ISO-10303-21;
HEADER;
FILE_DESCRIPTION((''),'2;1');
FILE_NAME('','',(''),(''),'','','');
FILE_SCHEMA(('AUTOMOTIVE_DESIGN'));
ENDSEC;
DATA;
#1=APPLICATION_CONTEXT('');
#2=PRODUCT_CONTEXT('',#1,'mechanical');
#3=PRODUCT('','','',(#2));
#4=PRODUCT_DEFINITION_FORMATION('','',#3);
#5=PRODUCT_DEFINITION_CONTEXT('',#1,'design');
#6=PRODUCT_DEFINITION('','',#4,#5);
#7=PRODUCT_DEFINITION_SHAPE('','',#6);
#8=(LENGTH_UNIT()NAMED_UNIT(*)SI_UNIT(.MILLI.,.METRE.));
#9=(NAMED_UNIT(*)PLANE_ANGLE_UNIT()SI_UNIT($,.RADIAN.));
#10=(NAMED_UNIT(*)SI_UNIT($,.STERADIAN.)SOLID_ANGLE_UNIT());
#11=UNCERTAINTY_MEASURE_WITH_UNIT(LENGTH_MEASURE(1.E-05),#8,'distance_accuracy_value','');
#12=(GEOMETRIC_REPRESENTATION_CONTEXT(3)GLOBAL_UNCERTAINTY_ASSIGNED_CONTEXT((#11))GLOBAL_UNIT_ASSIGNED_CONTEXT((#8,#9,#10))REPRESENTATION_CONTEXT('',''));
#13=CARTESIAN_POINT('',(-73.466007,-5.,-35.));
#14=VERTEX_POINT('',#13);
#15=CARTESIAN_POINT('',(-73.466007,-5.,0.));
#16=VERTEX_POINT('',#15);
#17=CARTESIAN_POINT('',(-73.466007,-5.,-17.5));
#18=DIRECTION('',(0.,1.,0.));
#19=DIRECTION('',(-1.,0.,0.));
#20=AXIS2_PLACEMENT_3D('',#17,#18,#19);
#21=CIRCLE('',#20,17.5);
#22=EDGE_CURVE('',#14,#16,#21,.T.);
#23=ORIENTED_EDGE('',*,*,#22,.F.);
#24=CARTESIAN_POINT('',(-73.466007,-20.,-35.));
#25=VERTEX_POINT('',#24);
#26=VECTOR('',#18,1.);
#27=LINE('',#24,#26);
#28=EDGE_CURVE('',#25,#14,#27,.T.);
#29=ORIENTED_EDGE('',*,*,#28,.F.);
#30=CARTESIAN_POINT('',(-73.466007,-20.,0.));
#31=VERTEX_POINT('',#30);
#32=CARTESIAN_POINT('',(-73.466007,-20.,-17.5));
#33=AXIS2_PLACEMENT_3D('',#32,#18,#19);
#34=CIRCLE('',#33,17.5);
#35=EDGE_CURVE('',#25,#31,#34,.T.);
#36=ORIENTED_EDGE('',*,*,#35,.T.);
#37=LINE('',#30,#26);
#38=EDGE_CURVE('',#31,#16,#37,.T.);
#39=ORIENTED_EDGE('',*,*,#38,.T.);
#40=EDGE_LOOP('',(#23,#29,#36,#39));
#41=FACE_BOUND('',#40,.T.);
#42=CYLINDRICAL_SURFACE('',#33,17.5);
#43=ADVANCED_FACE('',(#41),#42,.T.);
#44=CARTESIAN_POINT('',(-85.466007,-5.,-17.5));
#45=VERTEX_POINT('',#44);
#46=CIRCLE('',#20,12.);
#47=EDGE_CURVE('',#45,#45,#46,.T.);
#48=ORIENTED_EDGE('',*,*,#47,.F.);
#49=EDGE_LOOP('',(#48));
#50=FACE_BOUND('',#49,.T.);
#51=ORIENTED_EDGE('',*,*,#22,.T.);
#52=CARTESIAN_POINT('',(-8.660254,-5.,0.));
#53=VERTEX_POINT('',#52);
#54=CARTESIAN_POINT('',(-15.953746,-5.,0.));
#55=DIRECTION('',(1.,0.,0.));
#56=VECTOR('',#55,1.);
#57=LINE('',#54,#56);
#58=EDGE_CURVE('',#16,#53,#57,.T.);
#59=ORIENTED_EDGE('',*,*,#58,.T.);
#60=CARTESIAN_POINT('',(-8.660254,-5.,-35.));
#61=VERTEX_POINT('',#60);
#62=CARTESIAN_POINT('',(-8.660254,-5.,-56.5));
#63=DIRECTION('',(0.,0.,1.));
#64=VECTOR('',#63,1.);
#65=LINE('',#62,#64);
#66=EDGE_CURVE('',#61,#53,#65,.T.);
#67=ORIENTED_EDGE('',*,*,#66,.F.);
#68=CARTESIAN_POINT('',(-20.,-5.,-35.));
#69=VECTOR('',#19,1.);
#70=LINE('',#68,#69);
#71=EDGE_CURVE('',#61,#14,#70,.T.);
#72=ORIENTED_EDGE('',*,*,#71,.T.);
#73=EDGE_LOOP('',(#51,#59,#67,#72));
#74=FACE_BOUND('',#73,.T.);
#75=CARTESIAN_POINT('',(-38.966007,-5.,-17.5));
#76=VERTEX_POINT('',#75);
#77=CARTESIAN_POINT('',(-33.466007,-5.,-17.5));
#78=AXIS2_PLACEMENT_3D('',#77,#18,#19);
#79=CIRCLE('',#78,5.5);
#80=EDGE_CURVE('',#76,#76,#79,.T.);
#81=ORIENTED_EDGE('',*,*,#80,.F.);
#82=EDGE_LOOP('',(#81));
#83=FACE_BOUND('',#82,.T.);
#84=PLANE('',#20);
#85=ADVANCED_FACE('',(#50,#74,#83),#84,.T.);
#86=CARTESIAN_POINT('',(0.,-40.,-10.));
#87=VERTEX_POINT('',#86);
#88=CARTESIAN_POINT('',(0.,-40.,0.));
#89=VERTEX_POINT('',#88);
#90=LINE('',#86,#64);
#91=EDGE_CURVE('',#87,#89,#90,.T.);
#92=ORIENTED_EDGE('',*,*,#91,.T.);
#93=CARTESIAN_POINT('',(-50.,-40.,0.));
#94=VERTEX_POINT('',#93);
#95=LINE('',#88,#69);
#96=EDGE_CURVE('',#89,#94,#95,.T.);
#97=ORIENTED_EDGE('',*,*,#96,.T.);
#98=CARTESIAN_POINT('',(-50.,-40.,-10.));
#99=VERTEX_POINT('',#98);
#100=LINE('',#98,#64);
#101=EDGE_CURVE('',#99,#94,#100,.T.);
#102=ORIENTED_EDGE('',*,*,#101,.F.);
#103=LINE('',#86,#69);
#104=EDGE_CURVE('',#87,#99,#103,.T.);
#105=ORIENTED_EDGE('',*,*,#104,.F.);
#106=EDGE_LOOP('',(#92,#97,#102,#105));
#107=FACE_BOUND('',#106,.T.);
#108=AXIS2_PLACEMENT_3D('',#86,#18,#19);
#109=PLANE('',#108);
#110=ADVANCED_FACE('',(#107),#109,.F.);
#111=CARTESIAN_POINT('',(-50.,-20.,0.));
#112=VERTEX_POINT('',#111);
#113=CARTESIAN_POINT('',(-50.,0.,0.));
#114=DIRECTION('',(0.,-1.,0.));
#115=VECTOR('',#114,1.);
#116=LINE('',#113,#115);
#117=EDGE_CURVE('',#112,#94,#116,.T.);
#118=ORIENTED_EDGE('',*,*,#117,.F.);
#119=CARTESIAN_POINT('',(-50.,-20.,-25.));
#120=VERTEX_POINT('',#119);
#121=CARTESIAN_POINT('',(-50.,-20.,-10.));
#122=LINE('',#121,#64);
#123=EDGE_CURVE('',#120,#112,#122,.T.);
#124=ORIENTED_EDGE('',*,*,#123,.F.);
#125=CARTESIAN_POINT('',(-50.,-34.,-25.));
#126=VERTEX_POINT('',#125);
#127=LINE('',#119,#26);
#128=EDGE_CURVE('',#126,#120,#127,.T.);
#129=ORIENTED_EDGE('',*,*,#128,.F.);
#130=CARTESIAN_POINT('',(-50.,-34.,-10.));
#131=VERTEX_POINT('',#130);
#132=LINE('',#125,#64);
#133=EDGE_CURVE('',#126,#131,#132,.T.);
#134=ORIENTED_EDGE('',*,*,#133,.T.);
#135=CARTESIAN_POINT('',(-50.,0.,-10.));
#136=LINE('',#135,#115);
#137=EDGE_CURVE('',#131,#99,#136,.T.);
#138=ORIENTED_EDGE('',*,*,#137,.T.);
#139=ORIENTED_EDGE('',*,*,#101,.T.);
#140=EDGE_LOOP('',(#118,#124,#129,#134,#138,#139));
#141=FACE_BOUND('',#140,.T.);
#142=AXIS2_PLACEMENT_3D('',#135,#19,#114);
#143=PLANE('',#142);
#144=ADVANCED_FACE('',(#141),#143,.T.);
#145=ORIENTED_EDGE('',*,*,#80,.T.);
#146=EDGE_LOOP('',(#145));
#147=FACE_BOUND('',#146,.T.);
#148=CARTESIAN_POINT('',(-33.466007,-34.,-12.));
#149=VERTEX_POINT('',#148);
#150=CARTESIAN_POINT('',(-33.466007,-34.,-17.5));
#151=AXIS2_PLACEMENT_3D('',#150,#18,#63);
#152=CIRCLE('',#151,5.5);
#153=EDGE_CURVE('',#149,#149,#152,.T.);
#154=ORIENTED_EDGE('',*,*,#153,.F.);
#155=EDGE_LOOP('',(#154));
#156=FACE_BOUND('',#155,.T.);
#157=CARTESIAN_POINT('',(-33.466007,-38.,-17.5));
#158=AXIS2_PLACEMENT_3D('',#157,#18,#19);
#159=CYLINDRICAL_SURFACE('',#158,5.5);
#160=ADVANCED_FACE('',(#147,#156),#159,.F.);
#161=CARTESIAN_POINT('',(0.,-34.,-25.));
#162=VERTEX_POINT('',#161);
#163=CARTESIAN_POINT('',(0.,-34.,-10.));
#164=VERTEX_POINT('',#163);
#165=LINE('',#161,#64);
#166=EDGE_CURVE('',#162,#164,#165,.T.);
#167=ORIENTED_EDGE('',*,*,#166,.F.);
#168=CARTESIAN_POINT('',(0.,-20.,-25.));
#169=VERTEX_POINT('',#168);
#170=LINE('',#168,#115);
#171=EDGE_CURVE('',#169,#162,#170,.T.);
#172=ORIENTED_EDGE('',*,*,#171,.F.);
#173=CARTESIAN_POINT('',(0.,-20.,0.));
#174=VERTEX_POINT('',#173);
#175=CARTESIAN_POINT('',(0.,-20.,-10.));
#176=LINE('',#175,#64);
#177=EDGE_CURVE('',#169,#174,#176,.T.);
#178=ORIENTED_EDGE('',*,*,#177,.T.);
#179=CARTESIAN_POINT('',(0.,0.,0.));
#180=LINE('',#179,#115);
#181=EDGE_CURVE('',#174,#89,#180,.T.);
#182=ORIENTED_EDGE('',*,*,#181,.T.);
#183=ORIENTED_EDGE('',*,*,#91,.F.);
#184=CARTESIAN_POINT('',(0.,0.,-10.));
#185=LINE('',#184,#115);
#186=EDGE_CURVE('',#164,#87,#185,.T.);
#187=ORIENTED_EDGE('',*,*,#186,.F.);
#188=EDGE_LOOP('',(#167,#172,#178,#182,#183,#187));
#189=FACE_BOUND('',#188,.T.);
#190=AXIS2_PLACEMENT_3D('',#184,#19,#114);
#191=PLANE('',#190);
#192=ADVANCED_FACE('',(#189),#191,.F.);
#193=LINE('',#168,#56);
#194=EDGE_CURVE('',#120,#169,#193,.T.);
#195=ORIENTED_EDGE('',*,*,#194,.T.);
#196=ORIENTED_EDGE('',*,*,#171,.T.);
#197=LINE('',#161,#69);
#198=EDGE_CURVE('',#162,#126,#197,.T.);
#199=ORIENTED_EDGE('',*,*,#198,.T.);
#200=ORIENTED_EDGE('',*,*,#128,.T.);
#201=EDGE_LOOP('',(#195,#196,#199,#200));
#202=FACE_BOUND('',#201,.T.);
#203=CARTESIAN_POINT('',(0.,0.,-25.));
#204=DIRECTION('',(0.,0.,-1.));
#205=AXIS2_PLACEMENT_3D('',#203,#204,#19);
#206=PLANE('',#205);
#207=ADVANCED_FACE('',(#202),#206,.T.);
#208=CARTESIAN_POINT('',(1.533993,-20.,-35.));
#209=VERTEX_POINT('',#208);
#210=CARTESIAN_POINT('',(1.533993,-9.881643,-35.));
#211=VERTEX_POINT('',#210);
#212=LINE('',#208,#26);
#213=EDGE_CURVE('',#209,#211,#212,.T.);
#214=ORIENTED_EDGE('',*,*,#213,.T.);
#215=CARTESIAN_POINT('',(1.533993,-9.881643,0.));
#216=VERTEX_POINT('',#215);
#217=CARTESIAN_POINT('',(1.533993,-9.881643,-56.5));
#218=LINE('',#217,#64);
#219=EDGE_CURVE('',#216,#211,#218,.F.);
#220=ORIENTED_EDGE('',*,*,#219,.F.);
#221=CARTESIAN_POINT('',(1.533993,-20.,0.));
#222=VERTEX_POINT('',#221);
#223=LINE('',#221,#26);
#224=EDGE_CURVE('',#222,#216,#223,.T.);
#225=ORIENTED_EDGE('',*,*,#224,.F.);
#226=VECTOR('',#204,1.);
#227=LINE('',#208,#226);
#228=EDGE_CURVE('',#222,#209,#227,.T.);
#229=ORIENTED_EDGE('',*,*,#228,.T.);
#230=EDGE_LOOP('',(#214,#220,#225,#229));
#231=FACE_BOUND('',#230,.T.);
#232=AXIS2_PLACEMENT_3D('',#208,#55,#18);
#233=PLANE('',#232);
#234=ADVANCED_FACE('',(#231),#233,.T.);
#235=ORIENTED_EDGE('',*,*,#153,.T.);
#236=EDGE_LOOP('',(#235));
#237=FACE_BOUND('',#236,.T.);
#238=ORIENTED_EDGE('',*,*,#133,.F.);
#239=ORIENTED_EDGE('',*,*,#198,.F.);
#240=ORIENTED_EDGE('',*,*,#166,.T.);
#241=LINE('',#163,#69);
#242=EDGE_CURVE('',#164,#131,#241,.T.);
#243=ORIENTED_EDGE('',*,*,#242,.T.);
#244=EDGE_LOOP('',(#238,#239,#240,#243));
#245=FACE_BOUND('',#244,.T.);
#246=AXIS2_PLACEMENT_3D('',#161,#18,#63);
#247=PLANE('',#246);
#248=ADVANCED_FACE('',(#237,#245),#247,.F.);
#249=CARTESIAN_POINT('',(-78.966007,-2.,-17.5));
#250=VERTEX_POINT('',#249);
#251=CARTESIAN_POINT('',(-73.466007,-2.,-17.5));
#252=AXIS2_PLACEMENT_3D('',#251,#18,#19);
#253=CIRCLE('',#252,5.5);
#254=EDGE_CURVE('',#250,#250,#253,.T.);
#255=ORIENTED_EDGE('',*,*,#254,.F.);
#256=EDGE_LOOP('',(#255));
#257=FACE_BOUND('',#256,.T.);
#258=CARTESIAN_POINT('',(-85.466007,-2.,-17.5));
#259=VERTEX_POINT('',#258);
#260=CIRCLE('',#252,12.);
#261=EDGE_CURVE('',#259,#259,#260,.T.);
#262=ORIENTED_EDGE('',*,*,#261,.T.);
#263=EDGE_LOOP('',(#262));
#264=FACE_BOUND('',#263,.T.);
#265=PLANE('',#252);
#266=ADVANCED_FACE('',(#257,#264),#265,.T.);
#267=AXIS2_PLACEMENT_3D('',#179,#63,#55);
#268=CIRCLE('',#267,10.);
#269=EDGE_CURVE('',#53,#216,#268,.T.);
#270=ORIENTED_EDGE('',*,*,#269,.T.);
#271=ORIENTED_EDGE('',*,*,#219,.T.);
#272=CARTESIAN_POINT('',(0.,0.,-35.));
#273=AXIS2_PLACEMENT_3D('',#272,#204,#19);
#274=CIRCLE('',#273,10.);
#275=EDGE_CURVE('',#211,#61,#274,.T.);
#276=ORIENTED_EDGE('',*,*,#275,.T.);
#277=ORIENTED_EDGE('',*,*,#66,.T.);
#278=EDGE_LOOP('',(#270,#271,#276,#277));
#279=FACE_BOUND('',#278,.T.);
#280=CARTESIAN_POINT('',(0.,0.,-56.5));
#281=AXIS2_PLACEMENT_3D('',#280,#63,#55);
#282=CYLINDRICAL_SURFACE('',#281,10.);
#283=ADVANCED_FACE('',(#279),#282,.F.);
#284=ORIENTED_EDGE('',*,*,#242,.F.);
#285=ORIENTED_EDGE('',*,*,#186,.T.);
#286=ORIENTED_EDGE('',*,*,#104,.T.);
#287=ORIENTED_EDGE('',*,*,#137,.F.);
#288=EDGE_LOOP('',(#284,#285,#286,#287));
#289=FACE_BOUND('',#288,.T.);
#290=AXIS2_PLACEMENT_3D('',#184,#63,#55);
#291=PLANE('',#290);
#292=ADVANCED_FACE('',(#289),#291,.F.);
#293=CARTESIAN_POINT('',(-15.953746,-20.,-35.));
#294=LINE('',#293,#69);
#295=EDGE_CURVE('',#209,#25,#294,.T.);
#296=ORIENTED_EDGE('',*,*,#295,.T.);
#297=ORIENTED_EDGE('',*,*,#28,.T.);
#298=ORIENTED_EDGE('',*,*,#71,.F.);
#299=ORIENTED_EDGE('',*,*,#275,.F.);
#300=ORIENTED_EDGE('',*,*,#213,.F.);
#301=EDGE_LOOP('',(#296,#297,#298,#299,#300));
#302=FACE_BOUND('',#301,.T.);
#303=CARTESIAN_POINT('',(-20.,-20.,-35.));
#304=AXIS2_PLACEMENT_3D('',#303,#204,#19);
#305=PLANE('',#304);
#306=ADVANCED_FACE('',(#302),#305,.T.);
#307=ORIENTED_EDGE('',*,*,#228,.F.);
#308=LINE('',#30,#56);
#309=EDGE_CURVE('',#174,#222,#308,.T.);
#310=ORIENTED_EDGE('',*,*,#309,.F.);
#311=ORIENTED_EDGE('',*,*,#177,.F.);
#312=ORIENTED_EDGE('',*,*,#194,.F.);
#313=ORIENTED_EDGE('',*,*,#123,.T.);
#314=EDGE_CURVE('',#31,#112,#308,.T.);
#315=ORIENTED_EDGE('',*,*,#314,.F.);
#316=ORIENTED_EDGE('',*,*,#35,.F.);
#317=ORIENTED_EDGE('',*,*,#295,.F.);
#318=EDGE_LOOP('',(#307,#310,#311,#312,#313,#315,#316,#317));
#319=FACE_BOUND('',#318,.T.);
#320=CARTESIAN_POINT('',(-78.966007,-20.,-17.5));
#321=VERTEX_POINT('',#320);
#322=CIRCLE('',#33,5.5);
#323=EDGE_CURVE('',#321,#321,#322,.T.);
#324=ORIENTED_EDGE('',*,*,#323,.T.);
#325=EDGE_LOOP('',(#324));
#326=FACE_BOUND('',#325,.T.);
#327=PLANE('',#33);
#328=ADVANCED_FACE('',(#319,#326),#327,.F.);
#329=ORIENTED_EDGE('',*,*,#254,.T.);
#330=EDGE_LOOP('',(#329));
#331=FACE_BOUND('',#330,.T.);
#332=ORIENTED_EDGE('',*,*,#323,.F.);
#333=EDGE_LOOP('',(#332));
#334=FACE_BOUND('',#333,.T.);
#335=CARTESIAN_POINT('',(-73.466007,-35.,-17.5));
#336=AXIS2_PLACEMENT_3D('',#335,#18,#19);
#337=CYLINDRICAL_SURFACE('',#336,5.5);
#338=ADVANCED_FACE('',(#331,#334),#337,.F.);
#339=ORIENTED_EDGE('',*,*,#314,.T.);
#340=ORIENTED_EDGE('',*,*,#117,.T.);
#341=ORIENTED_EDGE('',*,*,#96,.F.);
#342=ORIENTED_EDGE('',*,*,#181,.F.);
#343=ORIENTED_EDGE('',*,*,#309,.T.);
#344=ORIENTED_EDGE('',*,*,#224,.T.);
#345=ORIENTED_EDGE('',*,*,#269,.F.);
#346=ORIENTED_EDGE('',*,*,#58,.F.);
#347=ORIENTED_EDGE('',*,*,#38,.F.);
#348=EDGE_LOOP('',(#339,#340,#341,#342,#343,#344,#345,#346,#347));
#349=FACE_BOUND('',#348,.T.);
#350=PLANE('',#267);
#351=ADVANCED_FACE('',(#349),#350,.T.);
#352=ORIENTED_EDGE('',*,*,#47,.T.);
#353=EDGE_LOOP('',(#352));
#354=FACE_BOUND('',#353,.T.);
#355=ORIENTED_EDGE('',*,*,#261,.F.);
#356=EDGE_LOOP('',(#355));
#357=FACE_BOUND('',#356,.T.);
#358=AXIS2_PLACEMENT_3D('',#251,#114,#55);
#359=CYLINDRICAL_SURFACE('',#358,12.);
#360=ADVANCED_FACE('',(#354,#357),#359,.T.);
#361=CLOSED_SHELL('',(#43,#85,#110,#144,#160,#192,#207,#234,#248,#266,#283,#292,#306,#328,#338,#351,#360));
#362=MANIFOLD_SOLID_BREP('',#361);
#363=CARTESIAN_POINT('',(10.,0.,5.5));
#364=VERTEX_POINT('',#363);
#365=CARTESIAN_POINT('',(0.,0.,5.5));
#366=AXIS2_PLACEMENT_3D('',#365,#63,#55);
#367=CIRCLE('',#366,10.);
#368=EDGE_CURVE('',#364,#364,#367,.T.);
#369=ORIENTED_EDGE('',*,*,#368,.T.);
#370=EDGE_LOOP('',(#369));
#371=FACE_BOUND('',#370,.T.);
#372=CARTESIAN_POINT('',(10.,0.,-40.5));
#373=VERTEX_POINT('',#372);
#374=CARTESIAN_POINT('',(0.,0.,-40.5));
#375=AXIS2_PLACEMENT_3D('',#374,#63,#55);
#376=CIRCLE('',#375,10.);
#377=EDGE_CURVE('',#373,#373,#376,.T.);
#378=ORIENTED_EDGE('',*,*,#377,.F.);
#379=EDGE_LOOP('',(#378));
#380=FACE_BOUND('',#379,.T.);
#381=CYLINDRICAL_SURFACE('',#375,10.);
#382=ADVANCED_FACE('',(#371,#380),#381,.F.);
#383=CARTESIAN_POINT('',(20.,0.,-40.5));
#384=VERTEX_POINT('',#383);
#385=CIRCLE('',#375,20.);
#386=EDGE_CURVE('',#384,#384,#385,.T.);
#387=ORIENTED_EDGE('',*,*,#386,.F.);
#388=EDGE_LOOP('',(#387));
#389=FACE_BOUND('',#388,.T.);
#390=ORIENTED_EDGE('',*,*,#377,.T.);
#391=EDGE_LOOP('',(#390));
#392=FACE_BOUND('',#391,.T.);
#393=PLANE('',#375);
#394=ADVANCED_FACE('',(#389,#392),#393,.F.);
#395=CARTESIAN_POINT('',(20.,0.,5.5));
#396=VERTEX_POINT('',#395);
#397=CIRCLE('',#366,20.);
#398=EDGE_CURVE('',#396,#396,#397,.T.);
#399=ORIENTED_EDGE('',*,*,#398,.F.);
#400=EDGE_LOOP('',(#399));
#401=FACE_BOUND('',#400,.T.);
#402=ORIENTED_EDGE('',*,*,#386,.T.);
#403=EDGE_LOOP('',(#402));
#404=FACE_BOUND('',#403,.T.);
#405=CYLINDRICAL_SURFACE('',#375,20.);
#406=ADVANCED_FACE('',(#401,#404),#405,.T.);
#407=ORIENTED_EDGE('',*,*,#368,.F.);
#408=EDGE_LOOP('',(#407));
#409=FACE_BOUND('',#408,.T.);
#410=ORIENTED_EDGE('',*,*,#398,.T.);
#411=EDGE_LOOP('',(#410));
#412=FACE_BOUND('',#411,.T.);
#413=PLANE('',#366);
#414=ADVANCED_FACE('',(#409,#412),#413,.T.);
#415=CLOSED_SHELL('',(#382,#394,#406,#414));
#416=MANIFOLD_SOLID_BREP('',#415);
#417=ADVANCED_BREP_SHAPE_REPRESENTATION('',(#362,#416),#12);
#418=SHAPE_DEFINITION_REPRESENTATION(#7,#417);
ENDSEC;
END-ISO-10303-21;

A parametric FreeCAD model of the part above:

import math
import FreeCAD as App
import Part
import Sketcher


def add_polygon(sketch, points):
    """Adds a closed chain of lines whose ends are joined by coincident constraints."""
    first, n = sketch.GeometryCount, len(points)
    for a, b in zip(points, points[1:] + points[:1]):
        sketch.addGeometry(Part.LineSegment(App.Vector(*a, 0), App.Vector(*b, 0)), False)
    for i in range(n):
        sketch.addConstraint(Sketcher.Constraint("Coincident", first + i, 2, first + (i + 1) % n, 1))

doc = App.newDocument("Part")
body = doc.addObject("PartDesign::Body", "Body")

sketch1 = body.newObject("Sketcher::SketchObject", "Sketch")
sketch1.AttachmentSupport = (doc.getObject("XY_Plane"), [""])
sketch1.MapMode = "FlatFace"
add_polygon(sketch1, [(-50, -20), (-50, -40), (0, -40), (0, -20)])
sketch1.addConstraint(Sketcher.Constraint("Vertical", 0))
sketch1.addConstraint(Sketcher.Constraint("Horizontal", 1))
sketch1.addConstraint(Sketcher.Constraint("Vertical", 2))
sketch1.addConstraint(Sketcher.Constraint("Horizontal", 3))
sketch1.addConstraint(Sketcher.Constraint("PointOnObject", 1, 2, -2))
sketch1.addConstraint(Sketcher.Constraint("DistanceX", 1, 1, 1, 2, 50.0))
sketch1.addConstraint(Sketcher.Constraint("DistanceY", 0, 2, 0, 1, 20.0))
sketch1.addConstraint(Sketcher.Constraint("DistanceY", 0, 2, -1, 1, 40.0))
pad1 = body.newObject("PartDesign::Pad", "Pad")
pad1.Profile = sketch1
pad1.Length = 10
pad1.Reversed = True

sketch2 = body.newObject("Sketcher::SketchObject", "Sketch001")
sketch2.AttachmentSupport = (doc.getObject("XY_Plane"), [""])
sketch2.MapMode = "FlatFace"
sketch2.AttachmentOffset = App.Placement(App.Vector(0, 0, -10), App.Rotation())
add_polygon(sketch2, [(0, -20), (0, -34), (-50, -34), (-50, -20)])
sketch2.addConstraint(Sketcher.Constraint("Vertical", 0))
sketch2.addConstraint(Sketcher.Constraint("Horizontal", 1))
sketch2.addConstraint(Sketcher.Constraint("Vertical", 2))
sketch2.addConstraint(Sketcher.Constraint("Horizontal", 3))
sketch2.addConstraint(Sketcher.Constraint("PointOnObject", 0, 2, -2))
sketch2.addConstraint(Sketcher.Constraint("DistanceX", 1, 2, 1, 1, 50.0))
sketch2.addConstraint(Sketcher.Constraint("DistanceY", 0, 2, 0, 1, 14.0))
sketch2.addConstraint(Sketcher.Constraint("DistanceY", 0, 2, -1, 1, 34.0))
pad2 = body.newObject("PartDesign::Pad", "Pad001")
pad2.Profile = sketch2
pad2.Length = 15
pad2.Reversed = True

sketch3 = body.newObject("Sketcher::SketchObject", "Sketch002")
sketch3.AttachmentSupport = (doc.getObject("XZ_Plane"), [""])
sketch3.MapMode = "FlatFace"
sketch3.AttachmentOffset = App.Placement(App.Vector(0, 0, 5), App.Rotation())
sketch3.addGeometry(Part.LineSegment(App.Vector(-73, 0, 0), App.Vector(2, 0, 0)), False)
sketch3.addGeometry(Part.LineSegment(App.Vector(2, 0, 0), App.Vector(2, -35, 0)), False)
sketch3.addGeometry(Part.LineSegment(App.Vector(2, -35, 0), App.Vector(-73, -35, 0)), False)
sketch3.addGeometry(Part.ArcOfCircle(Part.Circle(App.Vector(-73, -18, 0), App.Vector(0, 0, 1), 18), math.radians(90), math.radians(270)), False)
sketch3.addConstraint(Sketcher.Constraint("Coincident", 0, 2, 1, 1))
sketch3.addConstraint(Sketcher.Constraint("Coincident", 1, 2, 2, 1))
sketch3.addConstraint(Sketcher.Constraint("Tangent", 2, 2, 3, 2))
sketch3.addConstraint(Sketcher.Constraint("Tangent", 3, 1, 0, 1))
sketch3.addConstraint(Sketcher.Constraint("Horizontal", 0))
sketch3.addConstraint(Sketcher.Constraint("Vertical", 1))
sketch3.addConstraint(Sketcher.Constraint("Horizontal", 2))
sketch3.addConstraint(Sketcher.Constraint("PointOnObject", 0, 2, -1))
sketch3.addConstraint(Sketcher.Constraint("Radius", 3, 17.5))
sketch3.addConstraint(Sketcher.Constraint("DistanceX", 0, 1, 0, 2, 75.0))
sketch3.addConstraint(Sketcher.Constraint("DistanceX", 3, 3, -1, 1, 73.466007))
pad3 = body.newObject("PartDesign::Pad", "Pad002")
pad3.Profile = sketch3
pad3.Length = 15

sketch4 = body.newObject("Sketcher::SketchObject", "Sketch003")
sketch4.AttachmentSupport = (doc.getObject("XY_Plane"), [""])
sketch4.MapMode = "FlatFace"
sketch4.AttachmentOffset = App.Placement(App.Vector(0, 0, 5.5), App.Rotation())
sketch4.addGeometry(Part.Circle(App.Vector(0, 0, 0), App.Vector(0, 0, 1), 10), False)
sketch4.addConstraint(Sketcher.Constraint("Coincident", 0, 3, -1, 1))
sketch4.addConstraint(Sketcher.Constraint("Diameter", 0, 20.0))
pocket1 = body.newObject("PartDesign::Pocket", "Pocket")
pocket1.Profile = sketch4
pocket1.Length = 62

sketch5 = body.newObject("Sketcher::SketchObject", "Sketch004")
sketch5.AttachmentSupport = (doc.getObject("XZ_Plane"), [""])
sketch5.MapMode = "FlatFace"
sketch5.AttachmentOffset = App.Placement(App.Vector(0, 0, 5), App.Rotation())
sketch5.addGeometry(Part.Circle(App.Vector(-73, -18, 0), App.Vector(0, 0, 1), 12), False)
sketch5.addConstraint(Sketcher.Constraint("Diameter", 0, 24.0))
sketch5.addConstraint(Sketcher.Constraint("DistanceY", 0, 3, -1, 1, 17.5))
sketch5.addConstraint(Sketcher.Constraint("DistanceX", 0, 3, -1, 1, 73.466007))
pad4 = body.newObject("PartDesign::Pad", "Pad003")
pad4.Profile = sketch5
pad4.Length = 3
pad4.Reversed = True

sketch6 = body.newObject("Sketcher::SketchObject", "Sketch005")
sketch6.AttachmentSupport = (doc.getObject("XZ_Plane"), [""])
sketch6.MapMode = "FlatFace"
sketch6.AttachmentOffset = App.Placement(App.Vector(0, 0, 2), App.Rotation())
sketch6.addGeometry(Part.Circle(App.Vector(-73, -18, 0), App.Vector(0, 0, 1), 6), False)
sketch6.addConstraint(Sketcher.Constraint("Diameter", 0, 11.0))
sketch6.addConstraint(Sketcher.Constraint("DistanceY", 0, 3, -1, 1, 17.5))
sketch6.addConstraint(Sketcher.Constraint("DistanceX", 0, 3, -1, 1, 73.466007))
pocket2 = body.newObject("PartDesign::Pocket", "Pocket001")
pocket2.Profile = sketch6
pocket2.Length = 33
pocket2.Reversed = True

sketch7 = body.newObject("Sketcher::SketchObject", "Sketch006")
sketch7.AttachmentSupport = (doc.getObject("XZ_Plane"), [""])
sketch7.MapMode = "FlatFace"
sketch7.AttachmentOffset = App.Placement(App.Vector(0, 0, 5), App.Rotation())
sketch7.addGeometry(Part.Circle(App.Vector(-33, -18, 0), App.Vector(0, 0, 1), 6), False)
sketch7.addConstraint(Sketcher.Constraint("Diameter", 0, 11.0))
sketch7.addConstraint(Sketcher.Constraint("DistanceY", 0, 3, -1, 1, 17.5))
sketch7.addConstraint(Sketcher.Constraint("DistanceX", 0, 3, -1, 1, 33.466007))
pocket3 = body.newObject("PartDesign::Pocket", "Pocket002")
pocket3.Profile = sketch7
pocket3.Length = 33
pocket3.Reversed = True
body2 = doc.addObject("PartDesign::Body", "Body001")

sketch8 = body2.newObject("Sketcher::SketchObject", "Sketch007")
sketch8.AttachmentSupport = (doc.getObject("XY_Plane001"), [""])
sketch8.MapMode = "FlatFace"
sketch8.AttachmentOffset = App.Placement(App.Vector(0, 0, 5.5), App.Rotation())
sketch8.addGeometry(Part.Circle(App.Vector(0, 0, 0), App.Vector(0, 0, 1), 20), False)
sketch8.addGeometry(Part.Circle(App.Vector(0, 0, 0), App.Vector(0, 0, 1), 10), False)
sketch8.addConstraint(Sketcher.Constraint("Coincident", 0, 3, -1, 1))
sketch8.addConstraint(Sketcher.Constraint("Coincident", 1, 3, -1, 1))
sketch8.addConstraint(Sketcher.Constraint("Diameter", 0, 40.0))
sketch8.addConstraint(Sketcher.Constraint("Diameter", 1, 20.0))
pad5 = body2.newObject("PartDesign::Pad", "Pad004")
pad5.Profile = sketch8
pad5.Length = 46
pad5.Reversed = True

doc.recompute()
